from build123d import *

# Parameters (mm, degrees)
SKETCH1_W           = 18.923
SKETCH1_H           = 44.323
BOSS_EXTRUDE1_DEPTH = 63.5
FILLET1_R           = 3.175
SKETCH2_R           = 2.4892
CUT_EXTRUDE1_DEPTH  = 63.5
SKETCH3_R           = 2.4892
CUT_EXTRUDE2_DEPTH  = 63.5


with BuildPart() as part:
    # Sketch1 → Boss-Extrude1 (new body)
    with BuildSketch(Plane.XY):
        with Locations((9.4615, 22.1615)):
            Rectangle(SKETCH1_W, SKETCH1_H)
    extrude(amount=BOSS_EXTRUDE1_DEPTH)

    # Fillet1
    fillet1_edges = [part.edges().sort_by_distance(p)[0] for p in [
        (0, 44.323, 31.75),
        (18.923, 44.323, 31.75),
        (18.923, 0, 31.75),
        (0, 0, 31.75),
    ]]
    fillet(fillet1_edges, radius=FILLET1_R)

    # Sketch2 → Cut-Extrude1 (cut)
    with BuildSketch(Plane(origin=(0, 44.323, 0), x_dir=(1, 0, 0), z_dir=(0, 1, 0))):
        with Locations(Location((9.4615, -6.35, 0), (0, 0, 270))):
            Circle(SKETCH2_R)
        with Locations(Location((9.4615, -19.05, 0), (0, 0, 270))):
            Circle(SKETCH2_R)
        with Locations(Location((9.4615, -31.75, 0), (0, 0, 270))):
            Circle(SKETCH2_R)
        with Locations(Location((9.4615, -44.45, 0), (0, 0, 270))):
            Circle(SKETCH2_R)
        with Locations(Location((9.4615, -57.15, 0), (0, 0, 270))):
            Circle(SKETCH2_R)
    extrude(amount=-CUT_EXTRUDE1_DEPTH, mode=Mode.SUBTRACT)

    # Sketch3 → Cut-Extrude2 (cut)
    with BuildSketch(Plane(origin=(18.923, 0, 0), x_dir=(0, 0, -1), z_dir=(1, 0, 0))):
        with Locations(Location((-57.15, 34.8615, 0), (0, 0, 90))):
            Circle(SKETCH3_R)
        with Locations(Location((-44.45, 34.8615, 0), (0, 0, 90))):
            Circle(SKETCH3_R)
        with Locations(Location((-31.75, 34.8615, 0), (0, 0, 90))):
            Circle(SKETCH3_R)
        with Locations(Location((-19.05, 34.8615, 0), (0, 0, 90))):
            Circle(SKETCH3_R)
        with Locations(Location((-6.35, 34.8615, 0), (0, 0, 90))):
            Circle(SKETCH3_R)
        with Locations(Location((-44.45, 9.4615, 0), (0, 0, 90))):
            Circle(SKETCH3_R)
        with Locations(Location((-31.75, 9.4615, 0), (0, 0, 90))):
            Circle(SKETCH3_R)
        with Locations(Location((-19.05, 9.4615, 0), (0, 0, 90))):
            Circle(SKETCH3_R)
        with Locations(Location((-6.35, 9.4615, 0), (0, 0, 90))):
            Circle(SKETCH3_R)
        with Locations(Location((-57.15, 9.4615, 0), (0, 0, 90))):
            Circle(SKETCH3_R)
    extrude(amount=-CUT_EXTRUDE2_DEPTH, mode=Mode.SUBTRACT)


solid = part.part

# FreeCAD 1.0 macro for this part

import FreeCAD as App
import Part
import Sketcher

V = App.Vector
Q = App.Units.Quantity


def edges_at(feature, points):
    """Names of the edges that pass closest to the given points."""
    edges = feature.Shape.Edges
    near = lambda p: min(range(len(edges)), key=lambda i: edges[i].distToShape(Part.Vertex(*p))[0])
    return sorted({f"Edge{near(p) + 1}" for p in points})

doc = App.newDocument("Part")
body = doc.addObject("PartDesign::Body", "Body")

sketch1 = doc.addObject("Sketcher::SketchObject", "Sketch")
body.addObject(sketch1)
sketch1.AttachmentSupport = (doc.XY_Plane, [""])
sketch1.MapMode = "FlatFace"
sketch1.addGeometry(Part.LineSegment(V(0, 44, 0), V(0, 0, 0)), False)
sketch1.addGeometry(Part.LineSegment(V(0, 0, 0), V(19, 0, 0)), False)
sketch1.addGeometry(Part.LineSegment(V(19, 0, 0), V(19, 44, 0)), False)
sketch1.addGeometry(Part.LineSegment(V(19, 44, 0), V(0, 44, 0)), False)
sketch1.addConstraint(Sketcher.Constraint("Coincident", 0, 2, 1, 1))
sketch1.addConstraint(Sketcher.Constraint("Coincident", 1, 2, 2, 1))
sketch1.addConstraint(Sketcher.Constraint("Coincident", 2, 2, 3, 1))
sketch1.addConstraint(Sketcher.Constraint("Coincident", 3, 2, 0, 1))
sketch1.addConstraint(Sketcher.Constraint("Vertical", 0))
sketch1.addConstraint(Sketcher.Constraint("Horizontal", 1))
sketch1.addConstraint(Sketcher.Constraint("Vertical", 2))
sketch1.addConstraint(Sketcher.Constraint("Horizontal", 3))
sketch1.addConstraint(Sketcher.Constraint("Coincident", 0, 2, -1, 1))
sketch1.addConstraint(Sketcher.Constraint("DistanceX", 1, 1, 1, 2, Q("0.745 in")))
sketch1.addConstraint(Sketcher.Constraint("DistanceY", 0, 2, 0, 1, Q("1.745 in")))
pad1 = doc.addObject("PartDesign::Pad", "Pad")
body.addObject(pad1)
pad1.Profile = sketch1
pad1.Length = Q("2.5 in")
doc.recompute()

fillet = doc.addObject("PartDesign::Fillet", "Fillet")
body.addObject(fillet)
fillet.Base = (pad1, edges_at(pad1, [
    (0, 44.323, 31.75),
    (18.923, 44.323, 31.75),
    (18.923, 0, 31.75),
    (0, 0, 31.75),
]))
fillet.Radius = Q("0.125 in")

sketch2 = doc.addObject("Sketcher::SketchObject", "Sketch001")
body.addObject(sketch2)
sketch2.AttachmentSupport = (doc.XZ_Plane, [""])
sketch2.MapMode = "FlatFace"
sketch2.AttachmentOffset = App.Placement(V(0, 0, -1.745 * 25.4), App.Rotation())
sketch2.addGeometry(Part.Circle(V(9.5, 6.3, 0), V(0, 0, 1), 2.5), False)
sketch2.addGeometry(Part.Circle(V(9.5, 19.1, 0), V(0, 0, 1), 2.5), False)
sketch2.addGeometry(Part.Circle(V(9.5, 31.8, 0), V(0, 0, 1), 2.5), False)
sketch2.addGeometry(Part.Circle(V(9.5, 44.5, 0), V(0, 0, 1), 2.5), False)
sketch2.addGeometry(Part.Circle(V(9.5, 57.1, 0), V(0, 0, 1), 2.5), False)
sketch2.addConstraint(Sketcher.Constraint("Equal", 0, 1))
sketch2.addConstraint(Sketcher.Constraint("Equal", 1, 2))
sketch2.addConstraint(Sketcher.Constraint("Equal", 2, 3))
sketch2.addConstraint(Sketcher.Constraint("Equal", 3, 4))
sketch2.addConstraint(Sketcher.Constraint("Vertical", 0, 3, 1, 3))
sketch2.addConstraint(Sketcher.Constraint("Vertical", 1, 3, 2, 3))
sketch2.addConstraint(Sketcher.Constraint("Vertical", 2, 3, 3, 3))
sketch2.addConstraint(Sketcher.Constraint("Vertical", 3, 3, 4, 3))
sketch2.addConstraint(Sketcher.Constraint("Diameter", 0, Q("0.196 in")))
sketch2.addConstraint(Sketcher.Constraint("DistanceY", 0, 3, 2, 3, Q("1 in")))
sketch2.addConstraint(Sketcher.Constraint("DistanceY", 1, 3, 3, 3, Q("1 in")))
sketch2.addConstraint(Sketcher.Constraint("DistanceY", 2, 3, 4, 3, Q("1 in")))
sketch2.addConstraint(Sketcher.Constraint("DistanceY", 0, 3, 1, 3, Q("0.5 in")))
sketch2.addConstraint(Sketcher.Constraint("DistanceY", -1, 1, 0, 3, Q("0.25 in")))
sketch2.addConstraint(Sketcher.Constraint("DistanceX", -1, 1, 0, 3, Q("0.3725 in")))
pocket1 = doc.addObject("PartDesign::Pocket", "Pocket")
body.addObject(pocket1)
pocket1.Profile = sketch2
pocket1.Length = Q("2.5 in")
pocket1.Reversed = True

sketch3 = doc.addObject("Sketcher::SketchObject", "Sketch002")
body.addObject(sketch3)
sketch3.AttachmentSupport = (doc.YZ_Plane, [""])
sketch3.MapMode = "FlatFace"
sketch3.AttachmentOffset = App.Placement(V(0, 0, 0.745 * 25.4), App.Rotation())
sketch3.addGeometry(Part.Circle(V(34.9, 57.1, 0), V(0, 0, 1), 2.5), False)
sketch3.addGeometry(Part.Circle(V(34.9, 44.5, 0), V(0, 0, 1), 2.5), False)
sketch3.addGeometry(Part.Circle(V(34.9, 31.8, 0), V(0, 0, 1), 2.5), False)
sketch3.addGeometry(Part.Circle(V(34.9, 19.1, 0), V(0, 0, 1), 2.5), False)
sketch3.addGeometry(Part.Circle(V(34.9, 6.3, 0), V(0, 0, 1), 2.5), False)
sketch3.addGeometry(Part.Circle(V(9.5, 44.5, 0), V(0, 0, 1), 2.5), False)
sketch3.addGeometry(Part.Circle(V(9.5, 31.8, 0), V(0, 0, 1), 2.5), False)
sketch3.addGeometry(Part.Circle(V(9.5, 19.1, 0), V(0, 0, 1), 2.5), False)
sketch3.addGeometry(Part.Circle(V(9.5, 6.3, 0), V(0, 0, 1), 2.5), False)
sketch3.addGeometry(Part.Circle(V(9.5, 57.1, 0), V(0, 0, 1), 2.5), False)
sketch3.addConstraint(Sketcher.Constraint("Equal", 0, 1))
sketch3.addConstraint(Sketcher.Constraint("Equal", 1, 2))
sketch3.addConstraint(Sketcher.Constraint("Equal", 2, 3))
sketch3.addConstraint(Sketcher.Constraint("Equal", 3, 4))
sketch3.addConstraint(Sketcher.Constraint("Equal", 4, 5))
sketch3.addConstraint(Sketcher.Constraint("Equal", 5, 6))
sketch3.addConstraint(Sketcher.Constraint("Equal", 6, 7))
sketch3.addConstraint(Sketcher.Constraint("Equal", 7, 8))
sketch3.addConstraint(Sketcher.Constraint("Equal", 8, 9))
sketch3.addConstraint(Sketcher.Constraint("Horizontal", 1, 3, 5, 3))
sketch3.addConstraint(Sketcher.Constraint("Horizontal", 2, 3, 6, 3))
sketch3.addConstraint(Sketcher.Constraint("Horizontal", 3, 3, 7, 3))
sketch3.addConstraint(Sketcher.Constraint("Horizontal", 4, 3, 8, 3))
sketch3.addConstraint(Sketcher.Constraint("Horizontal", 0, 3, 9, 3))
sketch3.addConstraint(Sketcher.Constraint("Vertical", 0, 3, 1, 3))
sketch3.addConstraint(Sketcher.Constraint("Vertical", 1, 3, 2, 3))
sketch3.addConstraint(Sketcher.Constraint("Vertical", 2, 3, 3, 3))
sketch3.addConstraint(Sketcher.Constraint("Vertical", 3, 3, 4, 3))
sketch3.addConstraint(Sketcher.Constraint("Vertical", 5, 3, 6, 3))
sketch3.addConstraint(Sketcher.Constraint("Vertical", 6, 3, 7, 3))
sketch3.addConstraint(Sketcher.Constraint("Vertical", 7, 3, 8, 3))
sketch3.addConstraint(Sketcher.Constraint("Vertical", 8, 3, 9, 3))
sketch3.addConstraint(Sketcher.Constraint("Diameter", 0, Q("0.196 in")))
sketch3.addConstraint(Sketcher.Constraint("DistanceY", 2, 3, 0, 3, Q("1 in")))
sketch3.addConstraint(Sketcher.Constraint("DistanceY", 3, 3, 1, 3, Q("1 in")))
sketch3.addConstraint(Sketcher.Constraint("DistanceY", 4, 3, 2, 3, Q("1 in")))
sketch3.addConstraint(Sketcher.Constraint("DistanceX", 5, 3, 1, 3, Q("1 in")))
sketch3.addConstraint(Sketcher.Constraint("DistanceY", 1, 3, 0, 3, Q("0.5 in")))
sketch3.addConstraint(Sketcher.Constraint("DistanceY", -1, 1, 0, 3, Q("2.25 in")))
sketch3.addConstraint(Sketcher.Constraint("DistanceX", -1, 1, 0, 3, Q("1.3725 in")))
pocket2 = doc.addObject("PartDesign::Pocket", "Pocket001")
body.addObject(pocket2)
pocket2.Profile = sketch3
pocket2.Length = Q("2.5 in")

doc.recompute()
